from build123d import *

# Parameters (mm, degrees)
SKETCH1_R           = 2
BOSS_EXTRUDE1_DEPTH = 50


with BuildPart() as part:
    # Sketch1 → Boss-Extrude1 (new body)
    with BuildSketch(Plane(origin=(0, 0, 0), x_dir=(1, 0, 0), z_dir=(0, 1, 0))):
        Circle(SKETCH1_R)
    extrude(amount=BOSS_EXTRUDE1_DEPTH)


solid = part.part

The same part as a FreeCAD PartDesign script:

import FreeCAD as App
import Part
import Sketcher
Q = App.Units.Quantity

doc = App.newDocument("Part")
body = doc.addObject("PartDesign::Body", "Body")

# Sketch on XZ plane
sketch1 = doc.addObject("Sketcher::SketchObject", "Sketch")
body.addObject(sketch1)
sketch1.AttachmentSupport = (doc.XZ_Plane, [""])
sketch1.MapMode = "FlatFace"
sketch1.addGeometry(Part.Circle(App.Vector(0, 0, 0), App.Vector(0, 0, 1), 2), False)
sketch1.addConstraint(Sketcher.Constraint("Coincident", 0, 3, -1, 1))
sketch1.addConstraint(Sketcher.Constraint("Diameter", 0, Q("4 mm")))
pad1 = doc.addObject("PartDesign::Pad", "Pad")
body.addObject(pad1)
pad1.Profile = sketch1
pad1.Length = 50
pad1.Reversed = True

doc.recompute()
